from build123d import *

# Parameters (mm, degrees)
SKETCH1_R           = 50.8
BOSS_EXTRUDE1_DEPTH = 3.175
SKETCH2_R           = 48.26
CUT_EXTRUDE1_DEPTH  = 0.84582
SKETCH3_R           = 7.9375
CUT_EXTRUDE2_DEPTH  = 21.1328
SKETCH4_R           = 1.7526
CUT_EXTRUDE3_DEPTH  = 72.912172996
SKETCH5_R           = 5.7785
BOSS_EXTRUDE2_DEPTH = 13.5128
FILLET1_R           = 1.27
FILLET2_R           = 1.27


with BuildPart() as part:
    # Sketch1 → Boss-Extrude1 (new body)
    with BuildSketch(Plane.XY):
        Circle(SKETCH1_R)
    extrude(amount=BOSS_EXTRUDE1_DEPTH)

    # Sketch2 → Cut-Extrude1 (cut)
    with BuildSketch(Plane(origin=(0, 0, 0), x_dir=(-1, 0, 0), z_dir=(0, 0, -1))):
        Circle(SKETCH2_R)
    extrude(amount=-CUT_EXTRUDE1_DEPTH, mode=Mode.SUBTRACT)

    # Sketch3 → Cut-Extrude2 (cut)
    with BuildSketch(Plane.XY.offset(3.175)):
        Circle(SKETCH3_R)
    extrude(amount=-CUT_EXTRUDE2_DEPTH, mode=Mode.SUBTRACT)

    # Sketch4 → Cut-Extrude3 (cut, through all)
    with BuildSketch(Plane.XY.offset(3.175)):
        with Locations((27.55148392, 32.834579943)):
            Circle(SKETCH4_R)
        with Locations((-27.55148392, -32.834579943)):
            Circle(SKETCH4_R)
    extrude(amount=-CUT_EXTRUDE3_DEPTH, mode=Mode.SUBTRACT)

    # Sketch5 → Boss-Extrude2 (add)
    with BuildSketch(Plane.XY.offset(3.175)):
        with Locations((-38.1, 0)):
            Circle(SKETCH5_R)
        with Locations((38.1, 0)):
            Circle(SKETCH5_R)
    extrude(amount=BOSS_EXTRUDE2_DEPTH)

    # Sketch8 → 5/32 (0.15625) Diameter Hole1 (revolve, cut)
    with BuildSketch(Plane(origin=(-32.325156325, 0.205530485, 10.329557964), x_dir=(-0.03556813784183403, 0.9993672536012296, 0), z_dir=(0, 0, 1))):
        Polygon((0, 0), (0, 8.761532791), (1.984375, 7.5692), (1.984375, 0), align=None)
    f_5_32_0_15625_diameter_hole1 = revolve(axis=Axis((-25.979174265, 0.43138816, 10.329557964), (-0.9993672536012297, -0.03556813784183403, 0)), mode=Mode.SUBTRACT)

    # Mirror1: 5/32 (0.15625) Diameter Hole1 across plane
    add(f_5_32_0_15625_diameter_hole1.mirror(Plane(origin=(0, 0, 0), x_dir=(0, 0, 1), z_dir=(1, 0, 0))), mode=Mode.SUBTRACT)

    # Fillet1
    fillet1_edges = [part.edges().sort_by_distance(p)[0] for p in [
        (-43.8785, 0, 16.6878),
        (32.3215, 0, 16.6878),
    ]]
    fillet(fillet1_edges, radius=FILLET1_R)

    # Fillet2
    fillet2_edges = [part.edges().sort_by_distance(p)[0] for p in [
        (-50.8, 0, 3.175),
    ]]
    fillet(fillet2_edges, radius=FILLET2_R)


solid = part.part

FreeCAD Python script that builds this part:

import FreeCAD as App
import Part
import Sketcher

V = App.Vector
Q = App.Units.Quantity


def edges_at(feature, points):
    """Names of the edges that pass closest to the given points."""
    edges = feature.Shape.Edges
    near = lambda p: min(range(len(edges)), key=lambda i: edges[i].distToShape(Part.Vertex(*p))[0])
    return sorted({f"Edge{near(p) + 1}" for p in points})


def add_polygon(sketch, points):
    """Adds a closed chain of lines whose ends are joined by coincident constraints."""
    first, n = sketch.GeometryCount, len(points)
    for a, b in zip(points, points[1:] + points[:1]):
        sketch.addGeometry(Part.LineSegment(App.Vector(*a, 0), App.Vector(*b, 0)), False)
    for i in range(n):
        sketch.addConstraint(Sketcher.Constraint("Coincident", first + i, 2, first + (i + 1) % n, 1))

doc = App.newDocument("Part")
body = doc.addObject("PartDesign::Body", "Body")

sketch1 = body.newObject("Sketcher::SketchObject", "Sketch")
sketch1.AttachmentSupport = (doc.getObject("XY_Plane"), [""])
sketch1.MapMode = "FlatFace"
sketch1.addGeometry(Part.Circle(V(0, 0, 0), V(0, 0, 1), 51), False)
sketch1.addConstraint([
    Sketcher.Constraint("Coincident", 0, 3, -1, 1),
    Sketcher.Constraint("Diameter", 0, Q("4 in")),
])
pad1 = body.newObject("PartDesign::Pad", "Pad")
pad1.Profile = sketch1
pad1.Length = Q("0.125 in")

sketch2 = body.newObject("Sketcher::SketchObject", "Sketch001")
sketch2.AttachmentSupport = (doc.getObject("XY_Plane"), [""])
sketch2.MapMode = "FlatFace"
sketch2.addGeometry(Part.Circle(V(0, 0, 0), V(0, 0, 1), 48), False)
sketch2.addConstraint([
    Sketcher.Constraint("Coincident", 0, 3, -1, 1),
    Sketcher.Constraint("Diameter", 0, Q("3.8 in")),
])
pocket1 = body.newObject("PartDesign::Pocket", "Pocket")
pocket1.Profile = sketch2
pocket1.Length = Q("0.0333 in")
pocket1.Reversed = True

sketch3 = body.newObject("Sketcher::SketchObject", "Sketch002")
sketch3.AttachmentSupport = (doc.getObject("XY_Plane"), [""])
sketch3.MapMode = "FlatFace"
sketch3.AttachmentOffset = App.Placement(V(0, 0, 0.125 * 25.4), App.Rotation())
sketch3.addGeometry(Part.Circle(V(0, 0, 0), V(0, 0, 1), 8), False)
sketch3.addConstraint([
    Sketcher.Constraint("Coincident", 0, 3, -1, 1),
    Sketcher.Constraint("Diameter", 0, Q("0.625 in")),
])
pocket2 = body.newObject("PartDesign::Pocket", "Pocket001")
pocket2.Profile = sketch3
pocket2.Length = Q("0.832 in")

sketch4 = body.newObject("Sketcher::SketchObject", "Sketch003")
sketch4.AttachmentSupport = (doc.getObject("XY_Plane"), [""])
sketch4.MapMode = "FlatFace"
sketch4.AttachmentOffset = App.Placement(V(0, 0, 0.125 * 25.4), App.Rotation())
sketch4.addGeometry([
    Part.Circle(V(27.6, 32.8, 0), V(0, 0, 1), 1.8),
    Part.Circle(V(-27.6, -32.8, 0), V(0, 0, 1), 1.8),
], False)
sketch4.addConstraint([
    Sketcher.Constraint("Equal", 0, 1),
    Sketcher.Constraint("Symmetric", 0, 3, 1, 3, -1, 1),
    Sketcher.Constraint("Diameter", 0, Q("0.138 in")),
    Sketcher.Constraint("DistanceY", -1, 1, 0, 3, Q("1.2927 in")),
    Sketcher.Constraint("DistanceX", -1, 1, 0, 3, 27.551484),
])
pocket3 = body.newObject("PartDesign::Pocket", "Pocket002")
pocket3.Profile = sketch4
pocket3.Type = "ThroughAll"

sketch5 = body.newObject("Sketcher::SketchObject", "Sketch004")
sketch5.AttachmentSupport = (doc.getObject("XY_Plane"), [""])
sketch5.MapMode = "FlatFace"
sketch5.AttachmentOffset = App.Placement(V(0, 0, 0.125 * 25.4), App.Rotation())
sketch5.addGeometry([
    Part.Circle(V(-38, 0, 0), V(0, 0, 1), 6),
    Part.Circle(V(38, 0, 0), V(0, 0, 1), 6),
], False)
sketch5.addConstraint([
    Sketcher.Constraint("Equal", 0, 1),
    Sketcher.Constraint("Symmetric", 0, 3, 1, 3, -1, 1),
    Sketcher.Constraint("PointOnObject", 0, 3, -1),
    Sketcher.Constraint("Diameter", 0, Q("0.455 in")),
    Sketcher.Constraint("DistanceX", 0, 3, 1, 3, Q("3 in")),
])
pad2 = body.newObject("PartDesign::Pad", "Pad001")
pad2.Profile = sketch5
pad2.Length = Q("0.532 in")

sketch6 = body.newObject("Sketcher::SketchObject", "Sketch005")
sketch6.AttachmentSupport = (doc.getObject("XY_Plane"), [""])
sketch6.MapMode = "FlatFace"
sketch6.AttachmentOffset = App.Placement(V(0, 0, 10.329558), App.Rotation())
add_polygon(sketch6, [(-41.1, -0.1), (-32.3, 0.2), (-32.4, 2.2), (-40, 1.9)])
sketch6.addGeometry(Part.LineSegment(V(-32.3, 0.2, 0), V(-41.1, -0.1, 0)), True)
sketch6.addConstraint([
    Sketcher.Constraint("Coincident", 4, 1, 0, 2),
    Sketcher.Constraint("Coincident", 4, 2, 3, 2),
    Sketcher.Constraint("Perpendicular", 0, 1),
    Sketcher.Constraint("Perpendicular", 1, 2),
    Sketcher.Constraint("Distance", 1, Q("0.078125 in")),
    Sketcher.Constraint("Distance", 2, Q("0.298 in")),
    Sketcher.Constraint("DistanceY", 3, 2, -1, 1, 0.106101),
    Sketcher.Constraint("Distance", 3, 2.315038),
    Sketcher.Constraint("DistanceY", -1, 1, 0, 2, 0.20553),
    Sketcher.Constraint("DistanceX", 0, 2, -1, 1, 32.325156),
])
groove = body.newObject("PartDesign::Groove", "Groove")
groove.Profile = sketch6
groove.ReferenceAxis = (sketch6, ["Axis0"])
groove.Angle = 360
doc.recompute()

mirrored = body.newObject("PartDesign::Mirrored", "Mirrored")
mirrored.Originals = [groove]
mirrored.MirrorPlane = (doc.getObject("YZ_Plane"), [""])
body.Tip = mirrored
doc.recompute()

fillet = body.newObject("PartDesign::Fillet", "Fillet")
fillet.Base = (mirrored, edges_at(mirrored, [(-43.879, 0, 16.688), (32.322, 0, 16.688)]))
fillet.Radius = Q("0.05 in")
doc.recompute()

fillet2 = body.newObject("PartDesign::Fillet", "Fillet001")
fillet2.Base = (fillet, edges_at(fillet, [(-50.8, 0, 3.175)]))
fillet2.Radius = Q("0.05 in")

doc.recompute()
